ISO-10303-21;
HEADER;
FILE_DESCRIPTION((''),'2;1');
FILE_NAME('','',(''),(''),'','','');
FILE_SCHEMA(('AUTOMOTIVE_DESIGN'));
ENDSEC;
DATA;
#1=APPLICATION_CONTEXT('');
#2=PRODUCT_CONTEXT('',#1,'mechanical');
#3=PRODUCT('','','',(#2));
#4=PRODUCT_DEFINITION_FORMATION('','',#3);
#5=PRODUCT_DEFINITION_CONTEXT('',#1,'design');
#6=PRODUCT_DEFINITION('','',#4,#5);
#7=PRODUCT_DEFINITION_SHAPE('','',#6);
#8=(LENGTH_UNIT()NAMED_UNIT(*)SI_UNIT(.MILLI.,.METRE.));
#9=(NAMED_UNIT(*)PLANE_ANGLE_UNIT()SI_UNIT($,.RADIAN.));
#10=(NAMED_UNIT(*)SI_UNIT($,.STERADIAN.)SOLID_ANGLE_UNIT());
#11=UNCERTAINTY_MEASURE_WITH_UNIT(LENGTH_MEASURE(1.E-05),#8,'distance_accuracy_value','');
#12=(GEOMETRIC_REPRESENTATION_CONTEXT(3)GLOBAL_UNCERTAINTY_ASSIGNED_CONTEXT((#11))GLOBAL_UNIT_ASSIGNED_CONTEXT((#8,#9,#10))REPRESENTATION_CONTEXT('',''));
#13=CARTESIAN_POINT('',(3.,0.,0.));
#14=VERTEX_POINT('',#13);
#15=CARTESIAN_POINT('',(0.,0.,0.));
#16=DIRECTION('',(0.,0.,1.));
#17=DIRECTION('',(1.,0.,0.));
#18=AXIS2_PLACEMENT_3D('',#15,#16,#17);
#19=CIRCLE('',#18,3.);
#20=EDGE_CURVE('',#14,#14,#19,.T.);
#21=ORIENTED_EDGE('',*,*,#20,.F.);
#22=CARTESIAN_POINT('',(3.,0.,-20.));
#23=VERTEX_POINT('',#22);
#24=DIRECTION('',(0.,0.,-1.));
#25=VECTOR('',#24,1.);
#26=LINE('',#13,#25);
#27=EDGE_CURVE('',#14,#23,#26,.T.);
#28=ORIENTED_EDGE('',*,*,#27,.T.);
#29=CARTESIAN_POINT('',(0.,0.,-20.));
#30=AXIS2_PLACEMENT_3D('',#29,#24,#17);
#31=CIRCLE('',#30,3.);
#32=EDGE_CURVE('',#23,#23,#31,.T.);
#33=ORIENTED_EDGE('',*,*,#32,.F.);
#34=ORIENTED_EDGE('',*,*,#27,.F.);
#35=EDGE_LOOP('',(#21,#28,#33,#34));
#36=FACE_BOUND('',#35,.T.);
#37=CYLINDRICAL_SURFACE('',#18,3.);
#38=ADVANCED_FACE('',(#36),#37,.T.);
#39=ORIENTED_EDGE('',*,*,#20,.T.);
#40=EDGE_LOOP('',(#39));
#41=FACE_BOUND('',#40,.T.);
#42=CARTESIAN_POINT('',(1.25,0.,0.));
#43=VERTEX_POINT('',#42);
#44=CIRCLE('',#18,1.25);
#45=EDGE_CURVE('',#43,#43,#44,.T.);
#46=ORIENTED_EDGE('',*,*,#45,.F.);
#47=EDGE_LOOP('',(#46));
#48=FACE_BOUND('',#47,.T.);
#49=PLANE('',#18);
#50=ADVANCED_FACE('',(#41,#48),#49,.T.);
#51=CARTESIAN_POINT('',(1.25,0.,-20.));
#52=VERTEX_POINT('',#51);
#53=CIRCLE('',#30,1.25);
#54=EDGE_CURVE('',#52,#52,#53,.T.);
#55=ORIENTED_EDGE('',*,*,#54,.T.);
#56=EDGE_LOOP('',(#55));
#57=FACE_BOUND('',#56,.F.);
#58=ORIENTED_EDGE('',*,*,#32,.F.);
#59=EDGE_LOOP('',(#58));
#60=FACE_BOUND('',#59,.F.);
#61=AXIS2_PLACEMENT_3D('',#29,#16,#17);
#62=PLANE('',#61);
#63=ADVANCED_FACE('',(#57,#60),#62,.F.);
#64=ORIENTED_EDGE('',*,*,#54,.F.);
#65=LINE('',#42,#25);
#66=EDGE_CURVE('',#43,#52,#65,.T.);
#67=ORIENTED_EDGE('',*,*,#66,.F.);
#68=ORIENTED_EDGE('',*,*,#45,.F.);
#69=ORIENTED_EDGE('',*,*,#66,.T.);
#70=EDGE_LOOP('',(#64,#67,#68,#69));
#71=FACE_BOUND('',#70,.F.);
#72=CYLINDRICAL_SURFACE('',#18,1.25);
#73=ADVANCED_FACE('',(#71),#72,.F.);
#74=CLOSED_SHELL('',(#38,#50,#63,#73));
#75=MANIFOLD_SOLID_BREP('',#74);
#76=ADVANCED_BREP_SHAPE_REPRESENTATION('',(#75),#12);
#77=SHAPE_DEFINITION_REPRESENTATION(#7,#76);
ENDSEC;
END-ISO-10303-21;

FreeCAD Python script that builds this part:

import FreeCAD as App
import Part
import Sketcher
from FreeCAD import Vector
Q = App.Units.Quantity

doc = App.newDocument("Part")
body = doc.addObject("PartDesign::Body", "Body")

sketch1 = body.newObject("Sketcher::SketchObject", "Sketch")
sketch1.AttachmentSupport = (doc.getObject("XY_Plane"), [""])
sketch1.MapMode = "FlatFace"
sketch1.addGeometry(Part.Circle(Vector(0, 0, 0), Vector(0, 0, 1), 3), False)
sketch1.addGeometry(Part.Circle(Vector(0, 0, 0), Vector(0, 0, 1), 1.2), False)
sketch1.addConstraint(Sketcher.Constraint("Coincident", 0, 3, -1, 1))
sketch1.addConstraint(Sketcher.Constraint("Coincident", 1, 3, -1, 1))
sketch1.addConstraint(Sketcher.Constraint("Diameter", 0, Q("6 mm")))
sketch1.addConstraint(Sketcher.Constraint("Diameter", 1, Q("2.5 mm")))
pad1 = body.newObject("PartDesign::Pad", "Pad")
pad1.Profile = sketch1
pad1.Length = 20
pad1.Reversed = True

doc.recompute()
